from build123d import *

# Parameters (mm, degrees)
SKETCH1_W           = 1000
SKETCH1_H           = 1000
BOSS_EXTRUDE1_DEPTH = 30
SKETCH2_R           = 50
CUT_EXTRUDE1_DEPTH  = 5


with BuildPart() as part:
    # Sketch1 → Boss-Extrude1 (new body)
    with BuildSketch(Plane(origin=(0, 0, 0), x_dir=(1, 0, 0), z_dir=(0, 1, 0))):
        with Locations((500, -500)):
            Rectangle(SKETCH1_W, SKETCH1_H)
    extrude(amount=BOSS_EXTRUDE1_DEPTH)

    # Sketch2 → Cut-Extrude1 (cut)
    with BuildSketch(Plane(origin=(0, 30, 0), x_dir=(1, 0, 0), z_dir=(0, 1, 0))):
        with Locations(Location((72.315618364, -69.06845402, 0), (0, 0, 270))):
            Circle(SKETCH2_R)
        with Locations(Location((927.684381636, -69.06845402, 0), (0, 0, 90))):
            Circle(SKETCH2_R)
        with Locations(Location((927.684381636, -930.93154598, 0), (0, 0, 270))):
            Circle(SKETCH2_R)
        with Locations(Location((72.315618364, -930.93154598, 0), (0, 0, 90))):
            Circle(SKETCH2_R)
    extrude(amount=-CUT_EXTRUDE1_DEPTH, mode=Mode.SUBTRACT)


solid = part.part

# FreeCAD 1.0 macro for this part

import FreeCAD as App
import Part
import Sketcher


def add_polygon(sketch, points):
    """Adds a closed chain of lines whose ends are joined by coincident constraints."""
    first, n = sketch.GeometryCount, len(points)
    for a, b in zip(points, points[1:] + points[:1]):
        sketch.addGeometry(Part.LineSegment(App.Vector(*a, 0), App.Vector(*b, 0)), False)
    for i in range(n):
        sketch.addConstraint(Sketcher.Constraint("Coincident", first + i, 2, first + (i + 1) % n, 1))

doc = App.newDocument("Part")
body = doc.addObject("PartDesign::Body", "Body")

# Sketch on XZ plane
sketch1 = body.newObject("Sketcher::SketchObject", "Sketch")
sketch1.AttachmentSupport = (doc.getObject("XZ_Plane"), [""])
sketch1.MapMode = "FlatFace"
add_polygon(sketch1, [(0, 0), (0, 1000), (1000, 1000), (1000, 0)])  # lines 0-3
sketch1.addConstraint([
    Sketcher.Constraint("Vertical", 0),
    Sketcher.Constraint("Horizontal", 1),
    Sketcher.Constraint("Vertical", 2),
    Sketcher.Constraint("Horizontal", 3),
    Sketcher.Constraint("Coincident", 3, 2, -1, 1),
    Sketcher.Constraint("Equal", 3, 0),
    Sketcher.Constraint("DistanceX", 1, 1, 1, 2, 1000.0),
])
pad1 = body.newObject("PartDesign::Pad", "Pad")
pad1.Profile = sketch1
pad1.Length = 30
pad1.Reversed = True

# Sketch on XZ plane
sketch2 = body.newObject("Sketcher::SketchObject", "Sketch001")
sketch2.AttachmentSupport = (doc.getObject("XZ_Plane"), [""])
sketch2.MapMode = "FlatFace"
sketch2.AttachmentOffset = App.Placement(App.Vector(0, 0, -30), App.Rotation())
sketch2.addGeometry([
    Part.Circle(App.Vector(72, 69, 0), App.Vector(0, 0, 1), 50),
    Part.Circle(App.Vector(928, 69, 0), App.Vector(0, 0, 1), 50),
    Part.Circle(App.Vector(928, 931, 0), App.Vector(0, 0, 1), 50),
    Part.Circle(App.Vector(72, 931, 0), App.Vector(0, 0, 1), 50),
], False)
sketch2.addConstraint([
    Sketcher.Constraint("Equal", 0, 1),
    Sketcher.Constraint("Equal", 1, 2),
    Sketcher.Constraint("Equal", 2, 3),
    Sketcher.Constraint("Horizontal", 0, 3, 1, 3),
    Sketcher.Constraint("Horizontal", 2, 3, 3, 3),
    Sketcher.Constraint("Vertical", 1, 3, 2, 3),
    Sketcher.Constraint("Vertical", 0, 3, 3, 3),
    Sketcher.Constraint("Diameter", 0, 100.0),
    Sketcher.Constraint("DistanceX", -1, 1, 0, 3, 72.315618),
    Sketcher.Constraint("DistanceX", -1, 1, 1, 3, 927.684382),
    Sketcher.Constraint("DistanceY", 1, 3, 2, 3, 861.863092),
    Sketcher.Constraint("DistanceY", -1, 1, 0, 3, 69.068454),
])
pocket1 = body.newObject("PartDesign::Pocket", "Pocket")
pocket1.Profile = sketch2
pocket1.Length = 5
pocket1.Reversed = True

doc.recompute()
